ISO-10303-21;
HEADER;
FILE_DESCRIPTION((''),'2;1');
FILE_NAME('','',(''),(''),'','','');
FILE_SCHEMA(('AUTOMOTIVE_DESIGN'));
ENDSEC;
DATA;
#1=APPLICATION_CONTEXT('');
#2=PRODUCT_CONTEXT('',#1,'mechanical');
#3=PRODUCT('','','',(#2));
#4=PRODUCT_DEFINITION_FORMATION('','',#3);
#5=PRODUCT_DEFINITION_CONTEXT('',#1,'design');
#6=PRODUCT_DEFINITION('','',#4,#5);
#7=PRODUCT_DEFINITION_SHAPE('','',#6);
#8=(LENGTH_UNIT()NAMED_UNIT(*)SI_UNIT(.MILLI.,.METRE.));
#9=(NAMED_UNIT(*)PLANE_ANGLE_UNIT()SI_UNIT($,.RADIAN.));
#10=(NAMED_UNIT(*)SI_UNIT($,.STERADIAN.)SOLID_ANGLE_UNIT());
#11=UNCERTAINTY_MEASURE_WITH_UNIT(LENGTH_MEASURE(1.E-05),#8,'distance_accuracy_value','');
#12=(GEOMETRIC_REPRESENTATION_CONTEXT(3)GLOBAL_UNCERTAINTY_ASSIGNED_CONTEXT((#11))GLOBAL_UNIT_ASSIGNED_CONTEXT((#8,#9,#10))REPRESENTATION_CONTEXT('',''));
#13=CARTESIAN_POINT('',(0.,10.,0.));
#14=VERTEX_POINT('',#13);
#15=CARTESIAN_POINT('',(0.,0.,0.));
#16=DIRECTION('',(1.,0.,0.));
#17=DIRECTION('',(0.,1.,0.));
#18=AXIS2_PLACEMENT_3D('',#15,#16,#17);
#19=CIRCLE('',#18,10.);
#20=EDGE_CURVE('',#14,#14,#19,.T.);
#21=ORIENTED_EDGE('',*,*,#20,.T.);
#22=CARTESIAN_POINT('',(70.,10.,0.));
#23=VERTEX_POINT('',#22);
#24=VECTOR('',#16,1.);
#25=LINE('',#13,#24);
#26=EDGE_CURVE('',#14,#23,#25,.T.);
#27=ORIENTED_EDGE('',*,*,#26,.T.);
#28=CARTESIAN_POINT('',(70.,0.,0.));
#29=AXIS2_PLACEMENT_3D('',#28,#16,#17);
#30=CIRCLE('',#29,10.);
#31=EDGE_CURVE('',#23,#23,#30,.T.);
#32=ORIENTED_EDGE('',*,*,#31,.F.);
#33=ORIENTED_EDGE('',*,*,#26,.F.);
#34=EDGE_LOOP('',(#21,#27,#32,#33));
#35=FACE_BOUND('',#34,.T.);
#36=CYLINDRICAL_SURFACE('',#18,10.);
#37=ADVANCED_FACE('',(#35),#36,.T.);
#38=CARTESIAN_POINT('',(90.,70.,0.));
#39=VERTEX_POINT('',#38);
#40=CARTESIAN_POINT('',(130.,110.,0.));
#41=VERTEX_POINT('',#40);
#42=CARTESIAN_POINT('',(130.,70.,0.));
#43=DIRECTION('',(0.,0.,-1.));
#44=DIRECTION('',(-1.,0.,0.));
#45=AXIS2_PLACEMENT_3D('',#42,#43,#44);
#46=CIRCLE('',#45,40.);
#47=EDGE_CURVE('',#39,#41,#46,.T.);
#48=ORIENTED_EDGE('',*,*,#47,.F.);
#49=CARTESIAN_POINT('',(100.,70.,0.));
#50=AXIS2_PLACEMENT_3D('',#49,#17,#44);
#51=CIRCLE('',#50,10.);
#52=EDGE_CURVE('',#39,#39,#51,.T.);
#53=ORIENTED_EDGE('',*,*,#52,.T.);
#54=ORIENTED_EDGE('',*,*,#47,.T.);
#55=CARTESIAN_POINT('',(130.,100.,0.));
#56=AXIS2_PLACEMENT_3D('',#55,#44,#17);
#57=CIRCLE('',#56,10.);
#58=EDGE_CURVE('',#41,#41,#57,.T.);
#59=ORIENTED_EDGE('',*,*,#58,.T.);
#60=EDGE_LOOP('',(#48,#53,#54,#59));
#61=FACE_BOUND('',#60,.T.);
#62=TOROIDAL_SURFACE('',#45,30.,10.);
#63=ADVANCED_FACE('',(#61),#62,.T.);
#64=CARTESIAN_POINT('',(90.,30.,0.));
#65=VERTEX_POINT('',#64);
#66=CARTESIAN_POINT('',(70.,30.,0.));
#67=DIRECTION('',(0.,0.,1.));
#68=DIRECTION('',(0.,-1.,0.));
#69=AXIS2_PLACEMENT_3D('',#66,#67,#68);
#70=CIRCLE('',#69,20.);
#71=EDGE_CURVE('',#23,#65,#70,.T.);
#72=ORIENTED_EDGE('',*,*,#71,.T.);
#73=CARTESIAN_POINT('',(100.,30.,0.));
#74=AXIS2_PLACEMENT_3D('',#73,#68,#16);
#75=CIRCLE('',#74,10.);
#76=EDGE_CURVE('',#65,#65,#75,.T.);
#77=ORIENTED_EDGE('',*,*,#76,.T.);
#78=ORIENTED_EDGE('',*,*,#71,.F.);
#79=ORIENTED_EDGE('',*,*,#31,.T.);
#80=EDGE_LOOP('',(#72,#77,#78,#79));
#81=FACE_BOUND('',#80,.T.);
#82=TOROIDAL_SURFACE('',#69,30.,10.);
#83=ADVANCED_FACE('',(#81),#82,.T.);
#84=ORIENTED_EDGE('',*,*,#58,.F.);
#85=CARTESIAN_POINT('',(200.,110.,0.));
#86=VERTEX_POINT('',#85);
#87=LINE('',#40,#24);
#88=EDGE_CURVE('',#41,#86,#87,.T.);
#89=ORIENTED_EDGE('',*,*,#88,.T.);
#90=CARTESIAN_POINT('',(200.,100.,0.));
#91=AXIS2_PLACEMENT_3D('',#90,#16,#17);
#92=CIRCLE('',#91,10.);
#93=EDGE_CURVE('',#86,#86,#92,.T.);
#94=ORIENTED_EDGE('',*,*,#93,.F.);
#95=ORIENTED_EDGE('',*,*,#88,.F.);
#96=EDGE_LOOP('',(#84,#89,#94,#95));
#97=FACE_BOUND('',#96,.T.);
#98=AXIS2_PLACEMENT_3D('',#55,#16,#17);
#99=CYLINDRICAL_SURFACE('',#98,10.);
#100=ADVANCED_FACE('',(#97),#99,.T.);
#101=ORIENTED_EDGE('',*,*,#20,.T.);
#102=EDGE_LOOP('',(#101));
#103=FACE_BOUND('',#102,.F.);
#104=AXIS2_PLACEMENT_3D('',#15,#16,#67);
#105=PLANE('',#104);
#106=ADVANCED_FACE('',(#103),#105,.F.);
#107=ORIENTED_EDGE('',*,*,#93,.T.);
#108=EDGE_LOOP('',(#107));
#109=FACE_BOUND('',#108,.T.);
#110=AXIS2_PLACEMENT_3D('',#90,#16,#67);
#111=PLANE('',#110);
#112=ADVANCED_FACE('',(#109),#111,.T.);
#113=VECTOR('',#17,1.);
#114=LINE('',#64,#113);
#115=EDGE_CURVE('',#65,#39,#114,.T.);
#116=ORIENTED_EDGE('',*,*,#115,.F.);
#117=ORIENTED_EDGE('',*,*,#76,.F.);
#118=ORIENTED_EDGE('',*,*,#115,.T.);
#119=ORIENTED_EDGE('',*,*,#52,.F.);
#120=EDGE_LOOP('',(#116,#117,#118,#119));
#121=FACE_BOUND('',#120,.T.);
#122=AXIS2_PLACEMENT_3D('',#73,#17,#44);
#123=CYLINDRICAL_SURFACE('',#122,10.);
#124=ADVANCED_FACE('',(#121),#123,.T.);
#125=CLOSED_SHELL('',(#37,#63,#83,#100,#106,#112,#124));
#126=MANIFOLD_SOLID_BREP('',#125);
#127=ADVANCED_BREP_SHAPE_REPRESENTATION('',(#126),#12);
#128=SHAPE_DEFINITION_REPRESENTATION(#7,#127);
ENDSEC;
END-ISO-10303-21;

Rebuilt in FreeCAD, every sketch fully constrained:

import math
import FreeCAD as App
import Part
import Sketcher
from FreeCAD import Vector

doc = App.newDocument("Part")
params = doc.addObject("Spreadsheet::Sheet", "Params")
for row, (alias, value) in enumerate([
    ("sketch1_diameter", "20 mm"),
    ("sketch2_radius", "30 mm"),
    ("sketch2_width", "70 mm"),
    ("sketch2_height", "40 mm"),
], start=1):
    params.set(f"A{row}", alias)
    params.set(f"B{row}", "=" + value)
    params.setAlias(f"B{row}", alias)

body = doc.addObject("PartDesign::Body", "Body")

sketch1 = body.newObject("Sketcher::SketchObject", "Sketch")
sketch1.AttachmentSupport = (doc.getObject("YZ_Plane"), [""])
sketch1.MapMode = "FlatFace"
sketch1.addGeometry(Part.Circle(Vector(0, 0, 0), Vector(0, 0, 1), 10), False)
sketch1.addConstraint([
    Sketcher.Constraint("Coincident", 0, 3, -1, 1),
    Sketcher.Constraint("Diameter", 0, 20.0),
])
sketch1.setExpression("Constraints[1]", "Params.sketch1_diameter")

sketch2 = body.newObject("Sketcher::SketchObject", "Sketch001")
sketch2.AttachmentSupport = (doc.getObject("XY_Plane"), [""])
sketch2.MapMode = "FlatFace"
sketch2.addGeometry([
    Part.LineSegment(Vector(0, 0, 0), Vector(70, 0, 0)),
    Part.ArcOfCircle(Part.Circle(Vector(70, 30, 0), Vector(0, 0, 1), 30), math.radians(-90), math.radians(0)),
    Part.LineSegment(Vector(100, 30, 0), Vector(100, 70, 0)),
    Part.ArcOfCircle(Part.Circle(Vector(130, 70, 0), Vector(0, 0, 1), 30), math.radians(90), math.radians(180)),
    Part.LineSegment(Vector(130, 100, 0), Vector(200, 100, 0)),
], False)
sketch2.addConstraint([
    Sketcher.Constraint("Tangent", 0, 2, 1, 1),
    Sketcher.Constraint("Tangent", 1, 2, 2, 1),
    Sketcher.Constraint("Tangent", 2, 2, 3, 2),
    Sketcher.Constraint("Tangent", 3, 1, 4, 1),
    Sketcher.Constraint("Horizontal", 0),
    Sketcher.Constraint("Vertical", 2),
    Sketcher.Constraint("Horizontal", 4),
    Sketcher.Constraint("Coincident", 0, 1, -1, 1),
    Sketcher.Constraint("Equal", 1, 3),
    Sketcher.Constraint("Equal", 0, 4),
    Sketcher.Constraint("Radius", 1, 30.0),
    Sketcher.Constraint("DistanceX", 0, 1, 0, 2, 70.0),
    Sketcher.Constraint("DistanceY", 2, 1, 2, 2, 40.0),
])
sketch2.setExpression("Constraints[10]", "Params.sketch2_radius")
sketch2.setExpression("Constraints[11]", "Params.sketch2_width")
sketch2.setExpression("Constraints[12]", "Params.sketch2_height")
doc.recompute()

additivepipe = body.newObject("PartDesign::AdditivePipe", "AdditivePipe")
additivepipe.Profile = sketch1
additivepipe.Spine = (sketch2, ["Edge1", "Edge2", "Edge3", "Edge4", "Edge5"])

doc.recompute()
